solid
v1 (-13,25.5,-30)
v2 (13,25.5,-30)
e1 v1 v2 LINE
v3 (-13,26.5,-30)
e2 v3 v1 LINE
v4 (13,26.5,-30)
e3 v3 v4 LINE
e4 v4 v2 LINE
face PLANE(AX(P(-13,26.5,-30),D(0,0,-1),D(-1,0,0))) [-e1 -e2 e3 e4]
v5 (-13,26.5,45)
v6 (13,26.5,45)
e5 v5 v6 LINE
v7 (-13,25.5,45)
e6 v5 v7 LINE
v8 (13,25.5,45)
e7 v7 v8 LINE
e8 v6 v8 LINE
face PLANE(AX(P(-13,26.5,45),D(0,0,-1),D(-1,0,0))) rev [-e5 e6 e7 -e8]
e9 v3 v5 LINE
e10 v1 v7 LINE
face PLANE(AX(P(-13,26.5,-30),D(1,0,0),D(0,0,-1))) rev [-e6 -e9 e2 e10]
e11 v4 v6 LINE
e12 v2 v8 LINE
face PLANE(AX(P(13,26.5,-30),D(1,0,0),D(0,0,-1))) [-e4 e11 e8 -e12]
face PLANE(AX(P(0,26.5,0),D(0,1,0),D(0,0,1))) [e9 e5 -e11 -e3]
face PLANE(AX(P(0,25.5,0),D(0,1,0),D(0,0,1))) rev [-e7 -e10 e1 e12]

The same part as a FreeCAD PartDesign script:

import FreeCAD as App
import Part
import Sketcher
Q = App.Units.Quantity

doc = App.newDocument("Part")
body = doc.addObject("PartDesign::Body", "Body")

sketch1 = doc.addObject("Sketcher::SketchObject", "Sketch")
body.addObject(sketch1)
sketch1.AttachmentSupport = (doc.XZ_Plane, [""])
sketch1.MapMode = "FlatFace"
sketch1.AttachmentOffset = App.Placement(App.Vector(0, 0, -25.5), App.Rotation())
sketch1.addGeometry(Part.LineSegment(App.Vector(-13, -30, 0), App.Vector(-13, 45, 0)), False)
sketch1.addGeometry(Part.LineSegment(App.Vector(-13, 45, 0), App.Vector(13, 45, 0)), False)
sketch1.addGeometry(Part.LineSegment(App.Vector(13, 45, 0), App.Vector(13, -30, 0)), False)
sketch1.addGeometry(Part.LineSegment(App.Vector(13, -30, 0), App.Vector(-13, -30, 0)), False)
sketch1.addConstraint(Sketcher.Constraint("Coincident", 0, 2, 1, 1))
sketch1.addConstraint(Sketcher.Constraint("Coincident", 1, 2, 2, 1))
sketch1.addConstraint(Sketcher.Constraint("Coincident", 2, 2, 3, 1))
sketch1.addConstraint(Sketcher.Constraint("Coincident", 3, 2, 0, 1))
sketch1.addConstraint(Sketcher.Constraint("Vertical", 0))
sketch1.addConstraint(Sketcher.Constraint("Horizontal", 1))
sketch1.addConstraint(Sketcher.Constraint("Vertical", 2))
sketch1.addConstraint(Sketcher.Constraint("Horizontal", 3))
sketch1.addConstraint(Sketcher.Constraint("DistanceX", 1, 1, 1, 2, Q("26 mm")))
sketch1.addConstraint(Sketcher.Constraint("DistanceY", 0, 1, 0, 2, Q("75 mm")))
sketch1.addConstraint(Sketcher.Constraint("DistanceX", 0, 2, -1, 1, Q("13 mm")))
sketch1.addConstraint(Sketcher.Constraint("DistanceY", -1, 1, 0, 2, Q("45 mm")))
pad1 = doc.addObject("PartDesign::Pad", "Pad")
body.addObject(pad1)
pad1.Profile = sketch1
pad1.Length = 1
pad1.Reversed = True

doc.recompute()
